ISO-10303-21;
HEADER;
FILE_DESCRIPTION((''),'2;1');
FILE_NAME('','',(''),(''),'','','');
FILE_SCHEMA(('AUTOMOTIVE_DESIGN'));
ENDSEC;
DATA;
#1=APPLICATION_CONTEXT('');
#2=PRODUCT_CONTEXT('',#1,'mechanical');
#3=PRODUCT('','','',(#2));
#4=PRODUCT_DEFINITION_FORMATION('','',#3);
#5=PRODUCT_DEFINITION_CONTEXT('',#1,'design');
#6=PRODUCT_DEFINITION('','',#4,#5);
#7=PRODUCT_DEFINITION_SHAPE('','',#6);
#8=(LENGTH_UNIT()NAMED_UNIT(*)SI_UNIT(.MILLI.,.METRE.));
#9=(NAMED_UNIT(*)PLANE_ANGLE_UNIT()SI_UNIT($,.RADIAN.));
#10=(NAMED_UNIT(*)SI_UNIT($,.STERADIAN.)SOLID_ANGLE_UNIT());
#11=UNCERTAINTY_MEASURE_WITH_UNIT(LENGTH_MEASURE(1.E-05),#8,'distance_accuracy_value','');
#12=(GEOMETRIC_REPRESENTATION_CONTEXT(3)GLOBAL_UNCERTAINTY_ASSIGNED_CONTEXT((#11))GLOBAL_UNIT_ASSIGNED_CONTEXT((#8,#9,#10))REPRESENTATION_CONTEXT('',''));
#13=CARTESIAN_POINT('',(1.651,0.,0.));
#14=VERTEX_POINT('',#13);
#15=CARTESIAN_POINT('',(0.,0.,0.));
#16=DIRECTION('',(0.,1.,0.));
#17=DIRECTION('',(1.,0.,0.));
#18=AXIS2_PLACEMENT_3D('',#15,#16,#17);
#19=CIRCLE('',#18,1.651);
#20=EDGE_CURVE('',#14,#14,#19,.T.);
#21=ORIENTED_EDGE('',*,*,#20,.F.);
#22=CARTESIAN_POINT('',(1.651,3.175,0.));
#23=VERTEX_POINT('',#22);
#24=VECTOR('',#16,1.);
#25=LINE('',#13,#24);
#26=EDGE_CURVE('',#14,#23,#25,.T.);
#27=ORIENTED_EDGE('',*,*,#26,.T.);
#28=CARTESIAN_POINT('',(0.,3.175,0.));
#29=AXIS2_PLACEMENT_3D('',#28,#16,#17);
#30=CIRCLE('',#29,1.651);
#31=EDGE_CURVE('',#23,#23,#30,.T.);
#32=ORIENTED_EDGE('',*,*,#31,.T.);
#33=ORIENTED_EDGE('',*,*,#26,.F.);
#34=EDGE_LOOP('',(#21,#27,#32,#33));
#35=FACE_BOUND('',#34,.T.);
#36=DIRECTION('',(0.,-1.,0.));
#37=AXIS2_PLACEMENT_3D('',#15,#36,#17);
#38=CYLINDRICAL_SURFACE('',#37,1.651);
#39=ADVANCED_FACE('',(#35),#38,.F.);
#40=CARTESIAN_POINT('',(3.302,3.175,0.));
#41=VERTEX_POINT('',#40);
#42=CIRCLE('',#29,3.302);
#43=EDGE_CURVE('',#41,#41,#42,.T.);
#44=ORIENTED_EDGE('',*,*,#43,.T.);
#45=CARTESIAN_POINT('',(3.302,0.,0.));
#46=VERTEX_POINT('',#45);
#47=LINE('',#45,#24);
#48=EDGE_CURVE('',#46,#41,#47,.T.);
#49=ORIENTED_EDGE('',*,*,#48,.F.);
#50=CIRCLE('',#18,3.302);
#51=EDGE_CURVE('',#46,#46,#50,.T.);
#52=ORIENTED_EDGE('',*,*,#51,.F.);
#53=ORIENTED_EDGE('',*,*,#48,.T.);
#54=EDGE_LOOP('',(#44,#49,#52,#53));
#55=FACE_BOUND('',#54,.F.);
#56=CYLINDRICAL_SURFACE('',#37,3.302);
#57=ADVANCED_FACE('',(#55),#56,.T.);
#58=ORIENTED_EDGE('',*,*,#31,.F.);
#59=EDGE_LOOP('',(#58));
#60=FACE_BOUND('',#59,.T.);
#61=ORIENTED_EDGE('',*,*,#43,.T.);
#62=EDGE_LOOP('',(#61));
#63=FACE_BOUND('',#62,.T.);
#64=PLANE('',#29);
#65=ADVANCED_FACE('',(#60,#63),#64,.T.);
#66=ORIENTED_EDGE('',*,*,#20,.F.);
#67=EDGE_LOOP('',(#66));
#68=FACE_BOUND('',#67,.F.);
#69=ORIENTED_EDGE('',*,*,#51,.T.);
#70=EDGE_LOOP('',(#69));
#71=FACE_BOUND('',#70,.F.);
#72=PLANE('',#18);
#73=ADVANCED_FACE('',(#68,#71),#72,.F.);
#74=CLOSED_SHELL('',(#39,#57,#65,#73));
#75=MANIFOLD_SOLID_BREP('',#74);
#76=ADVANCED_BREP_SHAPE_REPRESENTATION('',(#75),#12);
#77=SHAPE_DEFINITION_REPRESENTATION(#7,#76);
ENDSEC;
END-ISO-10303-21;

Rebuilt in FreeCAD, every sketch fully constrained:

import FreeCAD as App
import Part
import Sketcher
Q = App.Units.Quantity

doc = App.newDocument("Part")
body = doc.addObject("PartDesign::Body", "Body")

# Sketch on XZ plane
sketch1 = doc.addObject("Sketcher::SketchObject", "Sketch")
body.addObject(sketch1)
sketch1.AttachmentSupport = (doc.XZ_Plane, [""])
sketch1.MapMode = "FlatFace"
sketch1.addGeometry(Part.Circle(App.Vector(0, 0, 0), App.Vector(0, 0, 1), 3.302), False)
sketch1.addGeometry(Part.Circle(App.Vector(0, 0, 0), App.Vector(0, 0, 1), 1.651), False)
sketch1.addConstraint(Sketcher.Constraint("Coincident", 0, 3, -1, 1))
sketch1.addConstraint(Sketcher.Constraint("Coincident", 1, 3, -1, 1))
sketch1.addConstraint(Sketcher.Constraint("Diameter", 0, Q("0.26 in")))
sketch1.addConstraint(Sketcher.Constraint("Diameter", 1, Q("0.13 in")))
pad1 = doc.addObject("PartDesign::Pad", "Pad")
body.addObject(pad1)
pad1.Profile = sketch1
pad1.Length = Q("0.125 in")
pad1.Reversed = True

doc.recompute()
